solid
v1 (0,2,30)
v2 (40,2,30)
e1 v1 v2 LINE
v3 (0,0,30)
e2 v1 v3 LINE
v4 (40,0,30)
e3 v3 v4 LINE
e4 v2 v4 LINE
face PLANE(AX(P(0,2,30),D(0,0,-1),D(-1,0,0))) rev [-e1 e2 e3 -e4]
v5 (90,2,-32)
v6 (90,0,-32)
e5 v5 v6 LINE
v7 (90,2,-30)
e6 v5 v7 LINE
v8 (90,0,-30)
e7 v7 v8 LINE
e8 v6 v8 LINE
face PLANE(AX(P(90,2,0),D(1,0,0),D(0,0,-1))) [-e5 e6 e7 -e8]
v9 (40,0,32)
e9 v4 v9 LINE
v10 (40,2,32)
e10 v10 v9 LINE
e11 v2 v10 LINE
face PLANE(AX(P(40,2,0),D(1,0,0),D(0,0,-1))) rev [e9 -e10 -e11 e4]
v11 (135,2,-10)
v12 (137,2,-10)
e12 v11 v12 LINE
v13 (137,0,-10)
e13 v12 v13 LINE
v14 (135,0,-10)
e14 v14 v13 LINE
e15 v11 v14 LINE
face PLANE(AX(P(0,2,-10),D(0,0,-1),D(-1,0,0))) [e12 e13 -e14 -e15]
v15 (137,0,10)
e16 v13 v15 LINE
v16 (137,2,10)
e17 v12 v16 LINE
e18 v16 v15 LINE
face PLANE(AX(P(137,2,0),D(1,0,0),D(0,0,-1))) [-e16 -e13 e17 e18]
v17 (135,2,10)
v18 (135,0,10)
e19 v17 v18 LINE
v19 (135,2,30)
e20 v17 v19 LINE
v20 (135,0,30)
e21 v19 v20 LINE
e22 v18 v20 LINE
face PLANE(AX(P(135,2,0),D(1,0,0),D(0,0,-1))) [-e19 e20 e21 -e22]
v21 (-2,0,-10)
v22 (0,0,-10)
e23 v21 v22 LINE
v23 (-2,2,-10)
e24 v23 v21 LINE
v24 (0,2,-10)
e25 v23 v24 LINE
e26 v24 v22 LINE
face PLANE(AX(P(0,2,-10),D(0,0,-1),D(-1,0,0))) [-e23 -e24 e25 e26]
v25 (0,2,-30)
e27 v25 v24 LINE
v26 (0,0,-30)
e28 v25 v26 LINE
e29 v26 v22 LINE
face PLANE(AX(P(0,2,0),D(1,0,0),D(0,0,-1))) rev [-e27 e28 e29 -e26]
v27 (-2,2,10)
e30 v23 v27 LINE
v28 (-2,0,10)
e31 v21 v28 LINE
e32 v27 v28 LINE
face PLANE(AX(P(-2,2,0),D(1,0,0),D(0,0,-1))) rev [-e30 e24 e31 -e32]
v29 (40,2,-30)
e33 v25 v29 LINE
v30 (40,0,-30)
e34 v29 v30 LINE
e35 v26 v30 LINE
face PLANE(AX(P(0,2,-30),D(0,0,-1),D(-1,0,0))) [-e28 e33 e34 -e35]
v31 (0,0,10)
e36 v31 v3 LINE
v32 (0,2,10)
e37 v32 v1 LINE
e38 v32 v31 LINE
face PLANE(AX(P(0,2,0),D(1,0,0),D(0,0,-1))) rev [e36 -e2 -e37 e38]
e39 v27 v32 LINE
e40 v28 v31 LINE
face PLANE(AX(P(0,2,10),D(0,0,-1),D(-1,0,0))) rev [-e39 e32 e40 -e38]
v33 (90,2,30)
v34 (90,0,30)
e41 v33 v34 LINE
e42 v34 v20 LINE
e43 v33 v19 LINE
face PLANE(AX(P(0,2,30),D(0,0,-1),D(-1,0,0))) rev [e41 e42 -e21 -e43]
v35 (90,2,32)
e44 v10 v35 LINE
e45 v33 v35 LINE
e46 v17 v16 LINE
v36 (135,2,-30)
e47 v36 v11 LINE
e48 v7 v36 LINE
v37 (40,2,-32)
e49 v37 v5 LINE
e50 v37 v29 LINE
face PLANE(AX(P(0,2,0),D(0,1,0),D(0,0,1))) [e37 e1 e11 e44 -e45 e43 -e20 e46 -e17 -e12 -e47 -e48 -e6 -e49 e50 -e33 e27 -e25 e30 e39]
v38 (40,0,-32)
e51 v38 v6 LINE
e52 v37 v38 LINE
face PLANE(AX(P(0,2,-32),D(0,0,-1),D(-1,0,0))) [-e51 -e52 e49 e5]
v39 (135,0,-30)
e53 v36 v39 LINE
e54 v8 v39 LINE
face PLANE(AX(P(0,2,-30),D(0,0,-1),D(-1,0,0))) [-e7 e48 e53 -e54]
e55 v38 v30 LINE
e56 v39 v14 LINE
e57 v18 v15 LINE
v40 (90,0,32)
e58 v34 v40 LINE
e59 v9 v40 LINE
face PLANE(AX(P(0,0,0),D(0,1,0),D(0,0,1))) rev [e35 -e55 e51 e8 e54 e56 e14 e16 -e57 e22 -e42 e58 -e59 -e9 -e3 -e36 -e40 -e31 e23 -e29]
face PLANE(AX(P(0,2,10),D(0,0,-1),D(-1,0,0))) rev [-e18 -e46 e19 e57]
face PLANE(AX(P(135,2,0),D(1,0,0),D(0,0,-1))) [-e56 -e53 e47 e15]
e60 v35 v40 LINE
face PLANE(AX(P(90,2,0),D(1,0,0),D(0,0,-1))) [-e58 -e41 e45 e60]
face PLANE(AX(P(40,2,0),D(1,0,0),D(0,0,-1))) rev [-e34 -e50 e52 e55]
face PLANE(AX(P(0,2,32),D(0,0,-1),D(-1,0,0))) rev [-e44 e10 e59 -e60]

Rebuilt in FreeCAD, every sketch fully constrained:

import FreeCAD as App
import Part
import Sketcher


def add_polygon(sketch, points):
    """Adds a closed chain of lines whose ends are joined by coincident constraints."""
    first, n = sketch.GeometryCount, len(points)
    for a, b in zip(points, points[1:] + points[:1]):
        sketch.addGeometry(Part.LineSegment(App.Vector(*a, 0), App.Vector(*b, 0)), False)
    for i in range(n):
        sketch.addConstraint(Sketcher.Constraint("Coincident", first + i, 2, first + (i + 1) % n, 1))

doc = App.newDocument("Part")
body = doc.addObject("PartDesign::Body", "Body")

# Sketch on XZ plane
sketch1 = body.newObject("Sketcher::SketchObject", "Sketch")
sketch1.AttachmentSupport = (doc.getObject("XZ_Plane"), [""])
sketch1.MapMode = "FlatFace"
add_polygon(sketch1, [(-2, -10), (-2, 10), (0, 10), (0, 30), (40, 30), (40, 32), (90, 32), (90, 30), (135, 30), (135, 10), (137, 10), (137, -10), (135, -10), (135, -30), (90, -30), (90, -32), (40, -32), (40, -30), (0, -30), (0, -10)])  # lines 0-19
sketch1.addConstraint([
    Sketcher.Constraint("Vertical", 0),
    Sketcher.Constraint("Horizontal", 1),
    Sketcher.Constraint("Vertical", 2),
    Sketcher.Constraint("Horizontal", 3),
    Sketcher.Constraint("Vertical", 4),
    Sketcher.Constraint("Horizontal", 5),
    Sketcher.Constraint("Vertical", 6),
    Sketcher.Constraint("Horizontal", 7),
    Sketcher.Constraint("Vertical", 8),
    Sketcher.Constraint("Horizontal", 9),
    Sketcher.Constraint("Vertical", 10),
    Sketcher.Constraint("Horizontal", 11),
    Sketcher.Constraint("Vertical", 12),
    Sketcher.Constraint("Horizontal", 13),
    Sketcher.Constraint("Vertical", 14),
    Sketcher.Constraint("Horizontal", 15),
    Sketcher.Constraint("Vertical", 16),
    Sketcher.Constraint("Horizontal", 17),
    Sketcher.Constraint("Vertical", 18),
    Sketcher.Constraint("Horizontal", 19),
    Sketcher.Constraint("Symmetric", 2, 2, 17, 2, -1, 1),
    Sketcher.Constraint("Symmetric", 8, 2, 11, 2, -1),
    Sketcher.Constraint("Symmetric", 6, 2, 13, 2, -1),
    Sketcher.Constraint("Symmetric", 4, 2, 15, 2, -1),
    Sketcher.Constraint("Symmetric", 1, 2, 18, 2, -1),
    Sketcher.Constraint("Horizontal", 3, 2, 6, 2),
    Sketcher.Constraint("Horizontal", 1, 2, 8, 2),
    Sketcher.Constraint("Equal", 1, 9),
    Sketcher.Constraint("Equal", 0, 2),
    Sketcher.Constraint("Equal", 19, 4),
    Sketcher.Constraint("DistanceX", 1, 1, 1, 2, 2.0),
    Sketcher.Constraint("DistanceX", 3, 1, 3, 2, 40.0),
    Sketcher.Constraint("DistanceX", 5, 1, 5, 2, 50.0),
    Sketcher.Constraint("DistanceX", 7, 1, 7, 2, 45.0),
    Sketcher.Constraint("DistanceY", 0, 1, 0, 2, 20.0),
])
pad1 = body.newObject("PartDesign::Pad", "Pad")
pad1.Profile = sketch1
pad1.Length = 2
pad1.Reversed = True

doc.recompute()
